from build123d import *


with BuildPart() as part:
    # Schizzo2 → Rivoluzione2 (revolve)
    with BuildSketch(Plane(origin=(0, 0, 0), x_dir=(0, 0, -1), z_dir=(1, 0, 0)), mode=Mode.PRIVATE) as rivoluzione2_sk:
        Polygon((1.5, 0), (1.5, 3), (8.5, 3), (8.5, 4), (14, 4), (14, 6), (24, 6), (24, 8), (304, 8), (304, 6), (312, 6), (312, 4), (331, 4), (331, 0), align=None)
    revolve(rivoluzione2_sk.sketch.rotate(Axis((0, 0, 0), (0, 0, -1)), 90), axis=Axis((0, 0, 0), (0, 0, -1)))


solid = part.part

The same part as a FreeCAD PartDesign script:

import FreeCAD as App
import Part
import Sketcher
from FreeCAD import Vector

doc = App.newDocument("Part")
params = doc.addObject("Spreadsheet::Sheet", "Params")
for row, (alias, value) in enumerate([
    ("sketch1_width", "3 mm"),
    ("sketch1_width2", "4 mm"),
    ("sketch1_width3", "2 mm"),
    ("sketch1_height", "19 mm"),
    ("sketch1_height2", "8 mm"),
    ("revolution_angle", "360 deg"),
], start=1):
    params.set(f"A{row}", alias)
    params.set(f"B{row}", "=" + value)
    params.setAlias(f"B{row}", alias)

body = doc.addObject("PartDesign::Body", "Body")

sketch1 = body.newObject("Sketcher::SketchObject", "Sketch")
sketch1.AttachmentSupport = (doc.getObject("YZ_Plane"), [""])
sketch1.MapMode = "FlatFace"
sketch1.addGeometry(Part.LineSegment(Vector(3, -1.5, 0), Vector(0, -1.5, 0)), False)
sketch1.addGeometry(Part.LineSegment(Vector(0, -1.5, 0), Vector(0, -331, 0)), False)
sketch1.addGeometry(Part.LineSegment(Vector(0, -331, 0), Vector(4, -331, 0)), False)
sketch1.addGeometry(Part.LineSegment(Vector(4, -331, 0), Vector(4, -312, 0)), False)
sketch1.addGeometry(Part.LineSegment(Vector(4, -312, 0), Vector(6, -312, 0)), False)
sketch1.addGeometry(Part.LineSegment(Vector(6, -312, 0), Vector(6, -304, 0)), False)
sketch1.addGeometry(Part.LineSegment(Vector(6, -304, 0), Vector(8, -304, 0)), False)
sketch1.addGeometry(Part.LineSegment(Vector(8, -304, 0), Vector(8, -24, 0)), False)
sketch1.addGeometry(Part.LineSegment(Vector(8, -24, 0), Vector(6, -24, 0)), False)
sketch1.addGeometry(Part.LineSegment(Vector(6, -24, 0), Vector(6, -14, 0)), False)
sketch1.addGeometry(Part.LineSegment(Vector(6, -14, 0), Vector(4, -14, 0)), False)
sketch1.addGeometry(Part.LineSegment(Vector(4, -14, 0), Vector(4, -8.5, 0)), False)
sketch1.addGeometry(Part.LineSegment(Vector(4, -8.5, 0), Vector(3, -8.5, 0)), False)
sketch1.addGeometry(Part.LineSegment(Vector(3, -8.5, 0), Vector(3, -1.5, 0)), False)
sketch1.addConstraint(Sketcher.Constraint("Coincident", 0, 2, 1, 1))
sketch1.addConstraint(Sketcher.Constraint("Coincident", 1, 2, 2, 1))
sketch1.addConstraint(Sketcher.Constraint("Coincident", 2, 2, 3, 1))
sketch1.addConstraint(Sketcher.Constraint("Coincident", 3, 2, 4, 1))
sketch1.addConstraint(Sketcher.Constraint("Coincident", 4, 2, 5, 1))
sketch1.addConstraint(Sketcher.Constraint("Coincident", 5, 2, 6, 1))
sketch1.addConstraint(Sketcher.Constraint("Coincident", 6, 2, 7, 1))
sketch1.addConstraint(Sketcher.Constraint("Coincident", 7, 2, 8, 1))
sketch1.addConstraint(Sketcher.Constraint("Coincident", 8, 2, 9, 1))
sketch1.addConstraint(Sketcher.Constraint("Coincident", 9, 2, 10, 1))
sketch1.addConstraint(Sketcher.Constraint("Coincident", 10, 2, 11, 1))
sketch1.addConstraint(Sketcher.Constraint("Coincident", 11, 2, 12, 1))
sketch1.addConstraint(Sketcher.Constraint("Coincident", 12, 2, 13, 1))
sketch1.addConstraint(Sketcher.Constraint("Coincident", 13, 2, 0, 1))
sketch1.addConstraint(Sketcher.Constraint("Horizontal", 0))
sketch1.addConstraint(Sketcher.Constraint("Vertical", 1))
sketch1.addConstraint(Sketcher.Constraint("Horizontal", 2))
sketch1.addConstraint(Sketcher.Constraint("Vertical", 3))
sketch1.addConstraint(Sketcher.Constraint("Horizontal", 4))
sketch1.addConstraint(Sketcher.Constraint("Vertical", 5))
sketch1.addConstraint(Sketcher.Constraint("Horizontal", 6))
sketch1.addConstraint(Sketcher.Constraint("Vertical", 7))
sketch1.addConstraint(Sketcher.Constraint("Horizontal", 8))
sketch1.addConstraint(Sketcher.Constraint("Vertical", 9))
sketch1.addConstraint(Sketcher.Constraint("Horizontal", 10))
sketch1.addConstraint(Sketcher.Constraint("Vertical", 11))
sketch1.addConstraint(Sketcher.Constraint("Horizontal", 12))
sketch1.addConstraint(Sketcher.Constraint("Vertical", 13))
sketch1.addConstraint(Sketcher.Constraint("PointOnObject", 0, 2, -2))
sketch1.addConstraint(Sketcher.Constraint("Vertical", 5, 2, 8, 2))
sketch1.addConstraint(Sketcher.Constraint("Vertical", 3, 2, 10, 2))
sketch1.addConstraint(Sketcher.Constraint("Equal", 4, 6))
sketch1.addConstraint(Sketcher.Constraint("DistanceX", 0, 2, 0, 1, 3.0))
sketch1.addConstraint(Sketcher.Constraint("DistanceX", 2, 1, 2, 2, 4.0))
sketch1.addConstraint(Sketcher.Constraint("DistanceX", 4, 1, 4, 2, 2.0))
sketch1.addConstraint(Sketcher.Constraint("DistanceY", 3, 1, 3, 2, 19.0))
sketch1.addConstraint(Sketcher.Constraint("DistanceY", 5, 1, 5, 2, 8.0))
sketch1.addConstraint(Sketcher.Constraint("DistanceY", 7, 1, 7, 2, 280.0))
sketch1.addConstraint(Sketcher.Constraint("DistanceY", 9, 1, 9, 2, 10.0))
sketch1.addConstraint(Sketcher.Constraint("DistanceY", 13, 1, 13, 2, 7.0))
sketch1.addConstraint(Sketcher.Constraint("DistanceY", 1, 2, 1, 1, 329.5))
sketch1.addConstraint(Sketcher.Constraint("DistanceY", 1, 2, -1, 1, 331.0))
sketch1.setExpression("Constraints[32]", "Params.sketch1_width")
sketch1.setExpression("Constraints[33]", "Params.sketch1_width2")
sketch1.setExpression("Constraints[34]", "Params.sketch1_width3")
sketch1.setExpression("Constraints[35]", "Params.sketch1_height")
sketch1.setExpression("Constraints[36]", "Params.sketch1_height2")
revolution = body.newObject("PartDesign::Revolution", "Revolution")
revolution.Profile = sketch1
revolution.ReferenceAxis = (sketch1, ["V_Axis"])
revolution.setExpression("Angle", "Params.revolution_angle")

doc.recompute()
